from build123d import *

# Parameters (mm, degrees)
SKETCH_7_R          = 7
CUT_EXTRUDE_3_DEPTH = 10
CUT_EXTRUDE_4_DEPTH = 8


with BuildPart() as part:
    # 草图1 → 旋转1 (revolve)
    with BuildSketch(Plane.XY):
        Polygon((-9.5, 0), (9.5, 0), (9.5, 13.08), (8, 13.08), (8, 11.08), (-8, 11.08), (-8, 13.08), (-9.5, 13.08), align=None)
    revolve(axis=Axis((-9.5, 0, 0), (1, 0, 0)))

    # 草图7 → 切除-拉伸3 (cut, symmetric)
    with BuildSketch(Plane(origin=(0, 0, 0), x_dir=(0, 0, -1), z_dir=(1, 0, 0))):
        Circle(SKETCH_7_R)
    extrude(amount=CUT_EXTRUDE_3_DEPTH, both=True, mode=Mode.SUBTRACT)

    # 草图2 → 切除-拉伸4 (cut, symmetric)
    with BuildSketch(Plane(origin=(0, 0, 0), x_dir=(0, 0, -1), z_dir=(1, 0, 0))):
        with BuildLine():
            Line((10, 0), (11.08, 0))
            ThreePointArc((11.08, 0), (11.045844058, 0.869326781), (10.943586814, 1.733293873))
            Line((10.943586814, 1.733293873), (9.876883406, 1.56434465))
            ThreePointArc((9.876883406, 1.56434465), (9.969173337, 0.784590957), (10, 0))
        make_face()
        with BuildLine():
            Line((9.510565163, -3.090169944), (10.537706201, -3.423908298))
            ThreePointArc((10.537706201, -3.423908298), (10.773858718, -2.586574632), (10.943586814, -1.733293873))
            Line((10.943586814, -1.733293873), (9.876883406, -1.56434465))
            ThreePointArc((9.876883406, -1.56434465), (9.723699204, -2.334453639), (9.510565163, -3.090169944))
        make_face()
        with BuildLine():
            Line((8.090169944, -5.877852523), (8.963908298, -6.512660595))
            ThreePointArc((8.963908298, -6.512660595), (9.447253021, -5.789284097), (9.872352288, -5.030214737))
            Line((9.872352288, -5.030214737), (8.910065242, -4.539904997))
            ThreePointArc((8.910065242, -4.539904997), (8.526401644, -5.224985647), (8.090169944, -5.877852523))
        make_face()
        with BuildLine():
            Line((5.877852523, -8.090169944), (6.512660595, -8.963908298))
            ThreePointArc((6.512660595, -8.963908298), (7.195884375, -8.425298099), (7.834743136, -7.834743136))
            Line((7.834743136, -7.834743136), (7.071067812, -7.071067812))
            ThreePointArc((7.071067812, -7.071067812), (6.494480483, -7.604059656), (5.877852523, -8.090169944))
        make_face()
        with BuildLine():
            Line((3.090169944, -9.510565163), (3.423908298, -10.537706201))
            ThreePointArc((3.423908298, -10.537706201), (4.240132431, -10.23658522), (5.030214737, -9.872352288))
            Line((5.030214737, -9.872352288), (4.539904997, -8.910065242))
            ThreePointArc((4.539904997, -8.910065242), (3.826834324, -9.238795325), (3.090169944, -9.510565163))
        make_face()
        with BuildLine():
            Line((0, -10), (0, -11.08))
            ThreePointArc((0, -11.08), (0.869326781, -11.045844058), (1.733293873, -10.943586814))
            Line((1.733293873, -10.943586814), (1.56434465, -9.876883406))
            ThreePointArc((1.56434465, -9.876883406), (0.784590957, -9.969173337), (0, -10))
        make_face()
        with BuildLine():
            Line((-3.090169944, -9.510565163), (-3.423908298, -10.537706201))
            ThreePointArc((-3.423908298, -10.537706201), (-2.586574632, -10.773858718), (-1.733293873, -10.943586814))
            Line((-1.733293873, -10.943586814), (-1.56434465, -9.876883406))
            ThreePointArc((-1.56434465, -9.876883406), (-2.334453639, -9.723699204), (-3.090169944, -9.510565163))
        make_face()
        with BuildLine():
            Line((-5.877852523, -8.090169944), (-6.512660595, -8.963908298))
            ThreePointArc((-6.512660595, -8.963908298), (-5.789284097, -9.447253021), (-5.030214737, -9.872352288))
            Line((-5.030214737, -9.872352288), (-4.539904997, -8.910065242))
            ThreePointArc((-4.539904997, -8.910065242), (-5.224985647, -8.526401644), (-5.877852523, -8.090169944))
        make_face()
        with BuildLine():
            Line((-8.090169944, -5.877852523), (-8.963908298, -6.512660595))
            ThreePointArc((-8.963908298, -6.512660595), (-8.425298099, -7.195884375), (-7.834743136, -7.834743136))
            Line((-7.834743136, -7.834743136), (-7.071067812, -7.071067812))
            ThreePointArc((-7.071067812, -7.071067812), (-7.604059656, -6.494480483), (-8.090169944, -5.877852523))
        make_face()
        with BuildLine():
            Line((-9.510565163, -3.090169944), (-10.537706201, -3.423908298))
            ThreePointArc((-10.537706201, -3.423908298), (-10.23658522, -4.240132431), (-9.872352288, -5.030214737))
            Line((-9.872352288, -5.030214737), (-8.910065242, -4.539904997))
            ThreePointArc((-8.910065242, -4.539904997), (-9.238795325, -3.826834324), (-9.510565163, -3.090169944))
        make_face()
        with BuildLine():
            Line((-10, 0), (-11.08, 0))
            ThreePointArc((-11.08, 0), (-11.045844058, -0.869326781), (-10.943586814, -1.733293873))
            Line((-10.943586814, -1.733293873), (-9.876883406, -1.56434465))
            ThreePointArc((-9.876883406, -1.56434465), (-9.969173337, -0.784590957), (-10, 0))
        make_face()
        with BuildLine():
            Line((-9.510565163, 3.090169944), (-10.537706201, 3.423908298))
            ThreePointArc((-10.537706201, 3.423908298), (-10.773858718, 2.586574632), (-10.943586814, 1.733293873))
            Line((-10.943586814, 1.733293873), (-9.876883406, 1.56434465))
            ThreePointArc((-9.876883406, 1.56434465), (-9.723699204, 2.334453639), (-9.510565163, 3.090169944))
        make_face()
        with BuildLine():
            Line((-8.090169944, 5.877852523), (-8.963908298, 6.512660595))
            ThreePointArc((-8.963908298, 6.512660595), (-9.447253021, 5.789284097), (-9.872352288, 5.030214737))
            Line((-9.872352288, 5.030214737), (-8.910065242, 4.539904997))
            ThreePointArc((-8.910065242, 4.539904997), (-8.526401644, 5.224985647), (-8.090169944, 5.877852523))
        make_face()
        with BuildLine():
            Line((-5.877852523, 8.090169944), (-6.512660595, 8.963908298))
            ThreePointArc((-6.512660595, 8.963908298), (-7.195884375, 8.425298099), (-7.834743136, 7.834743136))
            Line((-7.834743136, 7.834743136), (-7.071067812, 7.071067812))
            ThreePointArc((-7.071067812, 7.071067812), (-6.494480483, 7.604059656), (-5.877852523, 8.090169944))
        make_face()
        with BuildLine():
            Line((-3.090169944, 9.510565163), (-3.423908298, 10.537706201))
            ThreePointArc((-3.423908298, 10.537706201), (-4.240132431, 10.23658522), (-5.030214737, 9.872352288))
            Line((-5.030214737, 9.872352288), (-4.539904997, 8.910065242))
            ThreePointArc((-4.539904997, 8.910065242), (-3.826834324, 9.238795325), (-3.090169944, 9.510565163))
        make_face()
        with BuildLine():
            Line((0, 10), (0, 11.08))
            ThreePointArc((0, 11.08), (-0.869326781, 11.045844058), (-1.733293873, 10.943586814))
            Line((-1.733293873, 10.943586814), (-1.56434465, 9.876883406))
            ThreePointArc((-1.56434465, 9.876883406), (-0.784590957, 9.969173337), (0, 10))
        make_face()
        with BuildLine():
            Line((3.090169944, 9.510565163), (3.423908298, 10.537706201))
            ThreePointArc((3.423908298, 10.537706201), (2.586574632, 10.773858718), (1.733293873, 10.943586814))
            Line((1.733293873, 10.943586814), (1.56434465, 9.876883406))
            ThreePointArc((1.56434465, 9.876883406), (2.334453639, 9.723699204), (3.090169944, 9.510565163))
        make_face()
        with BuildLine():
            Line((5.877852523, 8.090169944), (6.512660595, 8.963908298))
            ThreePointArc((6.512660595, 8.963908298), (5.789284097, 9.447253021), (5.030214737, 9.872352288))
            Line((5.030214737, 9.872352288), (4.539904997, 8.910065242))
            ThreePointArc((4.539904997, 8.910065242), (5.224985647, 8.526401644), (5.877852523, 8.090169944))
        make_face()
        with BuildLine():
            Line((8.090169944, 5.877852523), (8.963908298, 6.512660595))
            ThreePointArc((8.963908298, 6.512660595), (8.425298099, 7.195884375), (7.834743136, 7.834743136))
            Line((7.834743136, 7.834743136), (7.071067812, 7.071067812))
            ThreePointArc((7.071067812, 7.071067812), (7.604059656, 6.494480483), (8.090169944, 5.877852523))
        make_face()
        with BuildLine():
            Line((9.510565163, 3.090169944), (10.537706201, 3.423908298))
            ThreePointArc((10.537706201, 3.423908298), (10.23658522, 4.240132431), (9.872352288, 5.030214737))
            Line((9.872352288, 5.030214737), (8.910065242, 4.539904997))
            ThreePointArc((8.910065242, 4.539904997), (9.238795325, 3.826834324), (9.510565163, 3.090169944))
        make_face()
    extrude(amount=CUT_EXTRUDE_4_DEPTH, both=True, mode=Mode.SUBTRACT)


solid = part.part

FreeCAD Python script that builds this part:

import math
import FreeCAD as App
import Part
import Sketcher
Q = App.Units.Quantity

doc = App.newDocument("Part")
params = doc.addObject("Spreadsheet::Sheet", "Params")
for row, (alias, value) in enumerate([
    ("sketch1_width", "19 mm"),
    ("sketch1_width2", "16 mm"),
    ("sketch1_height", "2 mm"),
    ("sketch1_height2", "13.08 mm"),
    ("revolution_angle", "360 deg"),
    ("sketch2_diameter", "14 mm"),
    ("pocket1_length", "20 mm"),
    ("sketch3_radius", "10 mm"),
    ("sketch3_radius2", "11.08 mm"),
    ("pocket2_length", "16 mm"),
], start=1):
    params.set(f"A{row}", alias)
    params.set(f"B{row}", "=" + value)
    params.setAlias(f"B{row}", alias)

body = doc.addObject("PartDesign::Body", "Body")

sketch1 = body.newObject("Sketcher::SketchObject", "Sketch")
sketch1.AttachmentSupport = (doc.getObject("XY_Plane"), [""])
sketch1.MapMode = "FlatFace"
sketch1.addGeometry([
    Part.LineSegment(App.Vector(-9.5, 0, 0), App.Vector(9.5, 0, 0)),
    Part.LineSegment(App.Vector(9.5, 0, 0), App.Vector(9.5, 13.1, 0)),
    Part.LineSegment(App.Vector(9.5, 13.1, 0), App.Vector(8, 13.1, 0)),
    Part.LineSegment(App.Vector(8, 13.1, 0), App.Vector(8, 11.1, 0)),
    Part.LineSegment(App.Vector(8, 11.1, 0), App.Vector(-8, 11.1, 0)),
    Part.LineSegment(App.Vector(-8, 11.1, 0), App.Vector(-8, 13.1, 0)),
    Part.LineSegment(App.Vector(-8, 13.1, 0), App.Vector(-9.5, 13.1, 0)),
    Part.LineSegment(App.Vector(-9.5, 13.1, 0), App.Vector(-9.5, 0, 0)),
], False)
sketch1.addConstraint([
    Sketcher.Constraint("Coincident", 0, 2, 1, 1),
    Sketcher.Constraint("Coincident", 1, 2, 2, 1),
    Sketcher.Constraint("Coincident", 2, 2, 3, 1),
    Sketcher.Constraint("Coincident", 3, 2, 4, 1),
    Sketcher.Constraint("Coincident", 4, 2, 5, 1),
    Sketcher.Constraint("Coincident", 5, 2, 6, 1),
    Sketcher.Constraint("Coincident", 6, 2, 7, 1),
    Sketcher.Constraint("Coincident", 7, 2, 0, 1),
    Sketcher.Constraint("Horizontal", 0),
    Sketcher.Constraint("Vertical", 1),
    Sketcher.Constraint("Horizontal", 2),
    Sketcher.Constraint("Vertical", 3),
    Sketcher.Constraint("Horizontal", 4),
    Sketcher.Constraint("Vertical", 5),
    Sketcher.Constraint("Horizontal", 6),
    Sketcher.Constraint("Vertical", 7),
    Sketcher.Constraint("Symmetric", 0, 2, 7, 2, -1, 1),
    Sketcher.Constraint("Symmetric", 2, 2, 5, 2, -2),
    Sketcher.Constraint("DistanceX", 0, 1, 0, 2, Q("19 mm")),
    Sketcher.Constraint("DistanceX", 4, 2, 4, 1, Q("16 mm")),
    Sketcher.Constraint("DistanceY", 3, 2, 3, 1, Q("2 mm")),
    Sketcher.Constraint("DistanceY", 1, 1, 1, 2, Q("13.08 mm")),
])
sketch1.setExpression("Constraints[18]", "Params.sketch1_width")
sketch1.setExpression("Constraints[19]", "Params.sketch1_width2")
sketch1.setExpression("Constraints[20]", "Params.sketch1_height")
sketch1.setExpression("Constraints[21]", "Params.sketch1_height2")
revolution = body.newObject("PartDesign::Revolution", "Revolution")
revolution.Profile = sketch1
revolution.ReferenceAxis = (sketch1, ["H_Axis"])
revolution.setExpression("Angle", "Params.revolution_angle")

sketch2 = body.newObject("Sketcher::SketchObject", "Sketch001")
sketch2.AttachmentSupport = (doc.getObject("YZ_Plane"), [""])
sketch2.MapMode = "FlatFace"
sketch2.addGeometry(Part.Circle(App.Vector(0, 0, 0), App.Vector(0, 0, 1), 7), False)
sketch2.addConstraint([
    Sketcher.Constraint("Coincident", 0, 3, -1, 1),
    Sketcher.Constraint("Diameter", 0, Q("14 mm")),
])
sketch2.setExpression("Constraints[1]", "Params.sketch2_diameter")
pocket1 = body.newObject("PartDesign::Pocket", "Pocket")
pocket1.Profile = sketch2
pocket1.setExpression("Length", "Params.pocket1_length")
pocket1.Midplane = True

sketch3 = body.newObject("Sketcher::SketchObject", "Sketch002")
sketch3.AttachmentSupport = (doc.getObject("YZ_Plane"), [""])
sketch3.MapMode = "FlatFace"
sketch3.addGeometry([
    Part.LineSegment(App.Vector(0, -10, 0), App.Vector(0, -11.1, 0)),
    Part.ArcOfCircle(Part.Circle(App.Vector(0, 0, 0), App.Vector(0, 0, 1), 11.1), math.radians(-90), math.radians(-81)),
    Part.LineSegment(App.Vector(1.7, -10.9, 0), App.Vector(1.6, -9.9, 0)),
    Part.ArcOfCircle(Part.Circle(App.Vector(0, 0, 0), App.Vector(0, 0, 1), 10), math.radians(-90), math.radians(-81)),
    Part.LineSegment(App.Vector(-3.1, -9.5, 0), App.Vector(-3.4, -10.5, 0)),
    Part.ArcOfCircle(Part.Circle(App.Vector(0, 0, 0), App.Vector(0, 0, 1), 11.1), math.radians(-108), math.radians(-99)),
    Part.LineSegment(App.Vector(-1.7, -10.9, 0), App.Vector(-1.6, -9.9, 0)),
    Part.ArcOfCircle(Part.Circle(App.Vector(0, 0, 0), App.Vector(0, 0, 1), 10), math.radians(-108), math.radians(-99)),
    Part.LineSegment(App.Vector(-5.9, -8.1, 0), App.Vector(-6.5, -9, 0)),
    Part.ArcOfCircle(Part.Circle(App.Vector(0, 0, 0), App.Vector(0, 0, 1), 11.1), math.radians(-126), math.radians(-117)),
    Part.LineSegment(App.Vector(-5, -9.9, 0), App.Vector(-4.5, -8.9, 0)),
    Part.ArcOfCircle(Part.Circle(App.Vector(0, 0, 0), App.Vector(0, 0, 1), 10), math.radians(-126), math.radians(-117)),
    Part.LineSegment(App.Vector(-8.1, -5.9, 0), App.Vector(-9, -6.5, 0)),
    Part.ArcOfCircle(Part.Circle(App.Vector(0, 0, 0), App.Vector(0, 0, 1), 11.1), math.radians(-144), math.radians(-135)),
    Part.LineSegment(App.Vector(-7.8, -7.8, 0), App.Vector(-7.1, -7.1, 0)),
    Part.ArcOfCircle(Part.Circle(App.Vector(0, 0, 0), App.Vector(0, 0, 1), 10), math.radians(-144), math.radians(-135)),
    Part.LineSegment(App.Vector(-9.5, -3.1, 0), App.Vector(-10.5, -3.4, 0)),
    Part.ArcOfCircle(Part.Circle(App.Vector(0, 0, 0), App.Vector(0, 0, 1), 11.1), math.radians(-162), math.radians(-153)),
    Part.LineSegment(App.Vector(-9.9, -5, 0), App.Vector(-8.9, -4.5, 0)),
    Part.ArcOfCircle(Part.Circle(App.Vector(0, 0, 0), App.Vector(0, 0, 1), 10), math.radians(-162), math.radians(-153)),
    Part.LineSegment(App.Vector(-10, 0, 0), App.Vector(-11.1, 0, 0)),
    Part.ArcOfCircle(Part.Circle(App.Vector(0, 0, 0), App.Vector(0, 0, 1), 11.1), math.radians(180), math.radians(189)),
    Part.LineSegment(App.Vector(-10.9, -1.7, 0), App.Vector(-9.9, -1.6, 0)),
    Part.ArcOfCircle(Part.Circle(App.Vector(0, 0, 0), App.Vector(0, 0, 1), 10), math.radians(-180), math.radians(-171)),
    Part.LineSegment(App.Vector(-9.5, 3.1, 0), App.Vector(-10.5, 3.4, 0)),
    Part.ArcOfCircle(Part.Circle(App.Vector(0, 0, 0), App.Vector(0, 0, 1), 11.1), math.radians(162), math.radians(171)),
    Part.LineSegment(App.Vector(-10.9, 1.7, 0), App.Vector(-9.9, 1.6, 0)),
    Part.ArcOfCircle(Part.Circle(App.Vector(0, 0, 0), App.Vector(0, 0, 1), 10), math.radians(162), math.radians(171)),
    Part.LineSegment(App.Vector(-8.1, 5.9, 0), App.Vector(-9, 6.5, 0)),
    Part.ArcOfCircle(Part.Circle(App.Vector(0, 0, 0), App.Vector(0, 0, 1), 11.1), math.radians(144), math.radians(153)),
    Part.LineSegment(App.Vector(-9.9, 5, 0), App.Vector(-8.9, 4.5, 0)),
    Part.ArcOfCircle(Part.Circle(App.Vector(0, 0, 0), App.Vector(0, 0, 1), 10), math.radians(144), math.radians(153)),
    Part.LineSegment(App.Vector(-5.9, 8.1, 0), App.Vector(-6.5, 9, 0)),
    Part.ArcOfCircle(Part.Circle(App.Vector(0, 0, 0), App.Vector(0, 0, 1), 11.1), math.radians(126), math.radians(135)),
    Part.LineSegment(App.Vector(-7.8, 7.8, 0), App.Vector(-7.1, 7.1, 0)),
    Part.ArcOfCircle(Part.Circle(App.Vector(0, 0, 0), App.Vector(0, 0, 1), 10), math.radians(126), math.radians(135)),
    Part.LineSegment(App.Vector(-3.1, 9.5, 0), App.Vector(-3.4, 10.5, 0)),
    Part.ArcOfCircle(Part.Circle(App.Vector(0, 0, 0), App.Vector(0, 0, 1), 11.1), math.radians(108), math.radians(117)),
    Part.LineSegment(App.Vector(-5, 9.9, 0), App.Vector(-4.5, 8.9, 0)),
    Part.ArcOfCircle(Part.Circle(App.Vector(0, 0, 0), App.Vector(0, 0, 1), 10), math.radians(108), math.radians(117)),
    Part.LineSegment(App.Vector(0, 10, 0), App.Vector(0, 11.1, 0)),
    Part.ArcOfCircle(Part.Circle(App.Vector(0, 0, 0), App.Vector(0, 0, 1), 11.1), math.radians(90), math.radians(99)),
    Part.LineSegment(App.Vector(-1.7, 10.9, 0), App.Vector(-1.6, 9.9, 0)),
    Part.ArcOfCircle(Part.Circle(App.Vector(0, 0, 0), App.Vector(0, 0, 1), 10), math.radians(90), math.radians(99)),
    Part.LineSegment(App.Vector(3.1, 9.5, 0), App.Vector(3.4, 10.5, 0)),
    Part.ArcOfCircle(Part.Circle(App.Vector(0, 0, 0), App.Vector(0, 0, 1), 11.1), math.radians(72), math.radians(81)),
    Part.LineSegment(App.Vector(1.7, 10.9, 0), App.Vector(1.6, 9.9, 0)),
    Part.ArcOfCircle(Part.Circle(App.Vector(0, 0, 0), App.Vector(0, 0, 1), 10), math.radians(72), math.radians(81)),
    Part.LineSegment(App.Vector(5.9, 8.1, 0), App.Vector(6.5, 9, 0)),
    Part.ArcOfCircle(Part.Circle(App.Vector(0, 0, 0), App.Vector(0, 0, 1), 11.1), math.radians(54), math.radians(63)),
    Part.LineSegment(App.Vector(5, 9.9, 0), App.Vector(4.5, 8.9, 0)),
    Part.ArcOfCircle(Part.Circle(App.Vector(0, 0, 0), App.Vector(0, 0, 1), 10), math.radians(54), math.radians(63)),
    Part.LineSegment(App.Vector(8.1, 5.9, 0), App.Vector(9, 6.5, 0)),
    Part.ArcOfCircle(Part.Circle(App.Vector(0, 0, 0), App.Vector(0, 0, 1), 11.1), math.radians(36), math.radians(45)),
    Part.LineSegment(App.Vector(7.8, 7.8, 0), App.Vector(7.1, 7.1, 0)),
    Part.ArcOfCircle(Part.Circle(App.Vector(0, 0, 0), App.Vector(0, 0, 1), 10), math.radians(36), math.radians(45)),
    Part.LineSegment(App.Vector(9.5, 3.1, 0), App.Vector(10.5, 3.4, 0)),
    Part.ArcOfCircle(Part.Circle(App.Vector(0, 0, 0), App.Vector(0, 0, 1), 11.1), math.radians(18), math.radians(27)),
    Part.LineSegment(App.Vector(9.9, 5, 0), App.Vector(8.9, 4.5, 0)),
    Part.ArcOfCircle(Part.Circle(App.Vector(0, 0, 0), App.Vector(0, 0, 1), 10), math.radians(18), math.radians(27)),
    Part.LineSegment(App.Vector(10, 0, 0), App.Vector(11.1, 0, 0)),
    Part.ArcOfCircle(Part.Circle(App.Vector(0, 0, 0), App.Vector(0, 0, 1), 11.1), math.radians(0), math.radians(9)),
    Part.LineSegment(App.Vector(10.9, 1.7, 0), App.Vector(9.9, 1.6, 0)),
    Part.ArcOfCircle(Part.Circle(App.Vector(0, 0, 0), App.Vector(0, 0, 1), 10), math.radians(0), math.radians(9)),
    Part.LineSegment(App.Vector(9.5, -3.1, 0), App.Vector(10.5, -3.4, 0)),
    Part.ArcOfCircle(Part.Circle(App.Vector(0, 0, 0), App.Vector(0, 0, 1), 11.1), math.radians(-18), math.radians(-9)),
    Part.LineSegment(App.Vector(10.9, -1.7, 0), App.Vector(9.9, -1.6, 0)),
    Part.ArcOfCircle(Part.Circle(App.Vector(0, 0, 0), App.Vector(0, 0, 1), 10), math.radians(-18), math.radians(-9)),
    Part.LineSegment(App.Vector(8.1, -5.9, 0), App.Vector(9, -6.5, 0)),
    Part.ArcOfCircle(Part.Circle(App.Vector(0, 0, 0), App.Vector(0, 0, 1), 11.1), math.radians(-36), math.radians(-27)),
    Part.LineSegment(App.Vector(9.9, -5, 0), App.Vector(8.9, -4.5, 0)),
    Part.ArcOfCircle(Part.Circle(App.Vector(0, 0, 0), App.Vector(0, 0, 1), 10), math.radians(-36), math.radians(-27)),
    Part.LineSegment(App.Vector(5.9, -8.1, 0), App.Vector(6.5, -9, 0)),
    Part.ArcOfCircle(Part.Circle(App.Vector(0, 0, 0), App.Vector(0, 0, 1), 11.1), math.radians(-54), math.radians(-45)),
    Part.LineSegment(App.Vector(7.8, -7.8, 0), App.Vector(7.1, -7.1, 0)),
    Part.ArcOfCircle(Part.Circle(App.Vector(0, 0, 0), App.Vector(0, 0, 1), 10), math.radians(-54), math.radians(-45)),
    Part.LineSegment(App.Vector(3.1, -9.5, 0), App.Vector(3.4, -10.5, 0)),
    Part.ArcOfCircle(Part.Circle(App.Vector(0, 0, 0), App.Vector(0, 0, 1), 11.1), math.radians(-72), math.radians(-63)),
    Part.LineSegment(App.Vector(5, -9.9, 0), App.Vector(4.5, -8.9, 0)),
    Part.ArcOfCircle(Part.Circle(App.Vector(0, 0, 0), App.Vector(0, 0, 1), 10), math.radians(-72), math.radians(-63)),
], False)
sketch3.addConstraint([
    Sketcher.Constraint("Coincident", 0, 2, 1, 1),
    Sketcher.Constraint("Coincident", 1, 2, 2, 1),
    Sketcher.Constraint("Coincident", 2, 2, 3, 2),
    Sketcher.Constraint("Coincident", 3, 1, 0, 1),
    Sketcher.Constraint("Coincident", 4, 2, 5, 1),
    Sketcher.Constraint("Coincident", 5, 2, 6, 1),
    Sketcher.Constraint("Coincident", 6, 2, 7, 2),
    Sketcher.Constraint("Coincident", 7, 1, 4, 1),
    Sketcher.Constraint("Coincident", 8, 2, 9, 1),
    Sketcher.Constraint("Coincident", 9, 2, 10, 1),
    Sketcher.Constraint("Coincident", 10, 2, 11, 2),
    Sketcher.Constraint("Coincident", 11, 1, 8, 1),
    Sketcher.Constraint("Coincident", 12, 2, 13, 1),
    Sketcher.Constraint("Coincident", 13, 2, 14, 1),
    Sketcher.Constraint("Coincident", 14, 2, 15, 2),
    Sketcher.Constraint("Coincident", 15, 1, 12, 1),
    Sketcher.Constraint("Coincident", 16, 2, 17, 1),
    Sketcher.Constraint("Coincident", 17, 2, 18, 1),
    Sketcher.Constraint("Coincident", 18, 2, 19, 2),
    Sketcher.Constraint("Coincident", 19, 1, 16, 1),
    Sketcher.Constraint("Coincident", 20, 2, 21, 1),
    Sketcher.Constraint("Coincident", 21, 2, 22, 1),
    Sketcher.Constraint("Coincident", 22, 2, 23, 2),
    Sketcher.Constraint("Coincident", 23, 1, 20, 1),
    Sketcher.Constraint("Coincident", 24, 2, 25, 1),
    Sketcher.Constraint("Coincident", 25, 2, 26, 1),
    Sketcher.Constraint("Coincident", 26, 2, 27, 2),
    Sketcher.Constraint("Coincident", 27, 1, 24, 1),
    Sketcher.Constraint("Coincident", 28, 2, 29, 1),
    Sketcher.Constraint("Coincident", 29, 2, 30, 1),
    Sketcher.Constraint("Coincident", 30, 2, 31, 2),
    Sketcher.Constraint("Coincident", 31, 1, 28, 1),
    Sketcher.Constraint("Coincident", 32, 2, 33, 1),
    Sketcher.Constraint("Coincident", 33, 2, 34, 1),
    Sketcher.Constraint("Coincident", 34, 2, 35, 2),
    Sketcher.Constraint("Coincident", 35, 1, 32, 1),
    Sketcher.Constraint("Coincident", 36, 2, 37, 1),
    Sketcher.Constraint("Coincident", 37, 2, 38, 1),
    Sketcher.Constraint("Coincident", 38, 2, 39, 2),
    Sketcher.Constraint("Coincident", 39, 1, 36, 1),
    Sketcher.Constraint("Coincident", 40, 2, 41, 1),
    Sketcher.Constraint("Coincident", 41, 2, 42, 1),
    Sketcher.Constraint("Coincident", 42, 2, 43, 2),
    Sketcher.Constraint("Coincident", 43, 1, 40, 1),
    Sketcher.Constraint("Coincident", 44, 2, 45, 1),
    Sketcher.Constraint("Coincident", 45, 2, 46, 1),
    Sketcher.Constraint("Coincident", 46, 2, 47, 2),
    Sketcher.Constraint("Coincident", 47, 1, 44, 1),
    Sketcher.Constraint("Coincident", 48, 2, 49, 1),
    Sketcher.Constraint("Coincident", 49, 2, 50, 1),
    Sketcher.Constraint("Coincident", 50, 2, 51, 2),
    Sketcher.Constraint("Coincident", 51, 1, 48, 1),
    Sketcher.Constraint("Coincident", 52, 2, 53, 1),
    Sketcher.Constraint("Coincident", 53, 2, 54, 1),
    Sketcher.Constraint("Coincident", 54, 2, 55, 2),
    Sketcher.Constraint("Coincident", 55, 1, 52, 1),
    Sketcher.Constraint("Coincident", 56, 2, 57, 1),
    Sketcher.Constraint("Coincident", 57, 2, 58, 1),
    Sketcher.Constraint("Coincident", 58, 2, 59, 2),
    Sketcher.Constraint("Coincident", 59, 1, 56, 1),
    Sketcher.Constraint("Coincident", 60, 2, 61, 1),
    Sketcher.Constraint("Coincident", 61, 2, 62, 1),
    Sketcher.Constraint("Coincident", 62, 2, 63, 2),
    Sketcher.Constraint("Coincident", 63, 1, 60, 1),
    Sketcher.Constraint("Coincident", 64, 2, 65, 1),
    Sketcher.Constraint("Coincident", 65, 2, 66, 1),
    Sketcher.Constraint("Coincident", 66, 2, 67, 2),
    Sketcher.Constraint("Coincident", 67, 1, 64, 1),
    Sketcher.Constraint("Coincident", 68, 2, 69, 1),
    Sketcher.Constraint("Coincident", 69, 2, 70, 1),
    Sketcher.Constraint("Coincident", 70, 2, 71, 2),
    Sketcher.Constraint("Coincident", 71, 1, 68, 1),
    Sketcher.Constraint("Coincident", 72, 2, 73, 1),
    Sketcher.Constraint("Coincident", 73, 2, 74, 1),
    Sketcher.Constraint("Coincident", 74, 2, 75, 2),
    Sketcher.Constraint("Coincident", 75, 1, 72, 1),
    Sketcher.Constraint("Coincident", 76, 2, 77, 1),
    Sketcher.Constraint("Coincident", 77, 2, 78, 1),
    Sketcher.Constraint("Coincident", 78, 2, 79, 2),
    Sketcher.Constraint("Coincident", 79, 1, 76, 1),
    Sketcher.Constraint("Vertical", 0),
    Sketcher.Constraint("Horizontal", 20),
    Sketcher.Constraint("Vertical", 40),
    Sketcher.Constraint("Horizontal", 60),
    Sketcher.Constraint("Coincident", 1, 3, -1, 1),
    Sketcher.Constraint("Coincident", 3, 3, -1, 1),
    Sketcher.Constraint("Coincident", 5, 3, -1, 1),
    Sketcher.Constraint("Coincident", 7, 3, -1, 1),
    Sketcher.Constraint("Coincident", 9, 3, -1, 1),
    Sketcher.Constraint("Coincident", 11, 3, -1, 1),
    Sketcher.Constraint("Coincident", 13, 3, -1, 1),
    Sketcher.Constraint("Coincident", 15, 3, -1, 1),
    Sketcher.Constraint("Coincident", 17, 3, -1, 1),
    Sketcher.Constraint("Coincident", 19, 3, -1, 1),
    Sketcher.Constraint("Coincident", 21, 3, -1, 1),
    Sketcher.Constraint("Coincident", 23, 3, -1, 1),
    Sketcher.Constraint("Coincident", 25, 3, -1, 1),
    Sketcher.Constraint("Coincident", 27, 3, -1, 1),
    Sketcher.Constraint("Coincident", 29, 3, -1, 1),
    Sketcher.Constraint("Coincident", 31, 3, -1, 1),
    Sketcher.Constraint("Coincident", 33, 3, -1, 1),
    Sketcher.Constraint("Coincident", 35, 3, -1, 1),
    Sketcher.Constraint("Coincident", 37, 3, -1, 1),
    Sketcher.Constraint("Coincident", 39, 3, -1, 1),
    Sketcher.Constraint("Coincident", 41, 3, -1, 1),
    Sketcher.Constraint("Coincident", 43, 3, -1, 1),
    Sketcher.Constraint("Coincident", 45, 3, -1, 1),
    Sketcher.Constraint("Coincident", 47, 3, -1, 1),
    Sketcher.Constraint("Coincident", 49, 3, -1, 1),
    Sketcher.Constraint("Coincident", 51, 3, -1, 1),
    Sketcher.Constraint("Coincident", 53, 3, -1, 1),
    Sketcher.Constraint("Coincident", 55, 3, -1, 1),
    Sketcher.Constraint("Coincident", 57, 3, -1, 1),
    Sketcher.Constraint("Coincident", 59, 3, -1, 1),
    Sketcher.Constraint("Coincident", 61, 3, -1, 1),
    Sketcher.Constraint("Coincident", 63, 3, -1, 1),
    Sketcher.Constraint("Coincident", 65, 3, -1, 1),
    Sketcher.Constraint("Coincident", 67, 3, -1, 1),
    Sketcher.Constraint("Coincident", 69, 3, -1, 1),
    Sketcher.Constraint("Coincident", 71, 3, -1, 1),
    Sketcher.Constraint("Coincident", 73, 3, -1, 1),
    Sketcher.Constraint("Coincident", 75, 3, -1, 1),
    Sketcher.Constraint("Coincident", 77, 3, -1, 1),
    Sketcher.Constraint("Coincident", 79, 3, -1, 1),
    Sketcher.Constraint("Equal", 1, 5),
    Sketcher.Constraint("Equal", 3, 7),
    Sketcher.Constraint("Equal", 5, 9),
    Sketcher.Constraint("Equal", 7, 11),
    Sketcher.Constraint("Equal", 9, 13),
    Sketcher.Constraint("Equal", 11, 15),
    Sketcher.Constraint("Equal", 13, 17),
    Sketcher.Constraint("Equal", 15, 19),
    Sketcher.Constraint("Equal", 17, 21),
    Sketcher.Constraint("Equal", 19, 23),
    Sketcher.Constraint("Equal", 21, 25),
    Sketcher.Constraint("Equal", 23, 27),
    Sketcher.Constraint("Equal", 25, 29),
    Sketcher.Constraint("Equal", 27, 31),
    Sketcher.Constraint("Equal", 29, 33),
    Sketcher.Constraint("Equal", 31, 35),
    Sketcher.Constraint("Equal", 33, 37),
    Sketcher.Constraint("Equal", 35, 39),
    Sketcher.Constraint("Equal", 37, 41),
    Sketcher.Constraint("Equal", 39, 43),
    Sketcher.Constraint("Equal", 41, 45),
    Sketcher.Constraint("Equal", 43, 47),
    Sketcher.Constraint("Equal", 45, 49),
    Sketcher.Constraint("Equal", 47, 51),
    Sketcher.Constraint("Equal", 49, 53),
    Sketcher.Constraint("Equal", 51, 55),
    Sketcher.Constraint("Equal", 53, 57),
    Sketcher.Constraint("Equal", 55, 59),
    Sketcher.Constraint("Equal", 57, 61),
    Sketcher.Constraint("Equal", 59, 63),
    Sketcher.Constraint("Equal", 61, 65),
    Sketcher.Constraint("Equal", 63, 67),
    Sketcher.Constraint("Equal", 65, 69),
    Sketcher.Constraint("Equal", 67, 71),
    Sketcher.Constraint("Equal", 69, 73),
    Sketcher.Constraint("Equal", 71, 75),
    Sketcher.Constraint("Equal", 73, 77),
    Sketcher.Constraint("Equal", 75, 79),
    Sketcher.Constraint("PointOnObject", 0, 2, -2),
    Sketcher.Constraint("PointOnObject", 20, 2, -1),
    Sketcher.Constraint("PointOnObject", 40, 2, -2),
    Sketcher.Constraint("PointOnObject", 60, 2, -1),
    Sketcher.Constraint("Perpendicular", 2, 22),
    Sketcher.Constraint("Perpendicular", 4, 24),
    Sketcher.Constraint("Perpendicular", 6, 26),
    Sketcher.Constraint("Perpendicular", 8, 28),
    Sketcher.Constraint("Perpendicular", 10, 30),
    Sketcher.Constraint("Perpendicular", 12, 32),
    Sketcher.Constraint("Perpendicular", 14, 34),
    Sketcher.Constraint("Perpendicular", 16, 36),
    Sketcher.Constraint("Perpendicular", 18, 38),
    Sketcher.Constraint("Perpendicular", 22, 42),
    Sketcher.Constraint("Perpendicular", 24, 44),
    Sketcher.Constraint("Perpendicular", 26, 46),
    Sketcher.Constraint("Perpendicular", 28, 48),
    Sketcher.Constraint("Perpendicular", 30, 50),
    Sketcher.Constraint("Perpendicular", 32, 52),
    Sketcher.Constraint("Perpendicular", 34, 54),
    Sketcher.Constraint("Perpendicular", 36, 56),
    Sketcher.Constraint("Perpendicular", 38, 58),
    Sketcher.Constraint("Perpendicular", 42, 62),
    Sketcher.Constraint("Perpendicular", 44, 64),
    Sketcher.Constraint("Perpendicular", 46, 66),
    Sketcher.Constraint("Perpendicular", 48, 68),
    Sketcher.Constraint("Perpendicular", 50, 70),
    Sketcher.Constraint("Perpendicular", 52, 72),
    Sketcher.Constraint("Perpendicular", 54, 74),
    Sketcher.Constraint("Perpendicular", 56, 76),
    Sketcher.Constraint("Perpendicular", 58, 78),
    Sketcher.Constraint("Horizontal", 1, 2, 5, 2),
    Sketcher.Constraint("Horizontal", 2, 2, 6, 2),
    Sketcher.Constraint("Horizontal", 36, 2, 44, 2),
    Sketcher.Constraint("Horizontal", 41, 2, 45, 2),
    Sketcher.Constraint("Horizontal", 39, 1, 47, 1),
    Sketcher.Constraint("Horizontal", 32, 2, 48, 2),
    Sketcher.Constraint("Horizontal", 37, 2, 49, 2),
    Sketcher.Constraint("Horizontal", 38, 2, 50, 2),
    Sketcher.Constraint("Horizontal", 35, 1, 51, 1),
    Sketcher.Constraint("Horizontal", 28, 2, 52, 2),
    Sketcher.Constraint("Horizontal", 33, 2, 53, 2),
    Sketcher.Constraint("Horizontal", 34, 2, 54, 2),
    Sketcher.Constraint("Horizontal", 24, 2, 56, 2),
    Sketcher.Constraint("Horizontal", 29, 2, 57, 2),
    Sketcher.Constraint("Horizontal", 25, 2, 61, 2),
    Sketcher.Constraint("Horizontal", 16, 2, 64, 2),
    Sketcher.Constraint("Horizontal", 21, 2, 65, 2),
    Sketcher.Constraint("Horizontal", 12, 2, 68, 2),
    Sketcher.Constraint("Horizontal", 17, 2, 69, 2),
    Sketcher.Constraint("Horizontal", 8, 2, 72, 2),
    Sketcher.Constraint("Horizontal", 13, 2, 73, 2),
    Sketcher.Constraint("Horizontal", 4, 2, 76, 2),
    Sketcher.Constraint("Horizontal", 9, 2, 77, 2),
    Sketcher.Constraint("Vertical", 16, 2, 24, 2),
    Sketcher.Constraint("Vertical", 21, 2, 25, 2),
    Sketcher.Constraint("Vertical", 12, 2, 28, 2),
    Sketcher.Constraint("Vertical", 17, 2, 29, 2),
    Sketcher.Constraint("Vertical", 8, 2, 32, 2),
    Sketcher.Constraint("Vertical", 13, 2, 33, 2),
    Sketcher.Constraint("Vertical", 4, 2, 36, 2),
    Sketcher.Constraint("Vertical", 9, 2, 37, 2),
    Sketcher.Constraint("Vertical", 5, 2, 41, 2),
    Sketcher.Constraint("Radius", 3, Q("10 mm")),
    Sketcher.Constraint("Angle", 2, Q("99 deg")),
    Sketcher.Constraint("Angle", 4, Q("-108 deg")),
    Sketcher.Constraint("Angle", 8, Q("-126 deg")),
    Sketcher.Constraint("Angle", 10, Q("63 deg")),
    Sketcher.Constraint("Radius", 1, Q("11.08 mm")),
    Sketcher.Constraint("DistanceX", 4, 2, -1, 1, Q("3.423908 mm")),
    Sketcher.Constraint("DistanceX", 8, 2, -1, 1, Q("6.512661 mm")),
    Sketcher.Constraint("DistanceX", 12, 2, -1, 1, Q("8.963908 mm")),
    Sketcher.Constraint("DistanceY", 16, 2, -1, 1, Q("3.423908 mm")),
    Sketcher.Constraint("DistanceX", -1, 1, 1, 2, Q("1.733294 mm")),
    Sketcher.Constraint("DistanceX", 9, 2, -1, 1, Q("5.030215 mm")),
    Sketcher.Constraint("DistanceX", 13, 2, -1, 1, Q("7.834743 mm")),
    Sketcher.Constraint("DistanceX", 17, 2, -1, 1, Q("9.872352 mm")),
    Sketcher.Constraint("DistanceX", 21, 2, -1, 1, Q("10.943587 mm")),
])
sketch3.setExpression("Constraints[225]", "Params.sketch3_radius")
sketch3.setExpression("Constraints[230]", "Params.sketch3_radius2")
pocket2 = body.newObject("PartDesign::Pocket", "Pocket001")
pocket2.Profile = sketch3
pocket2.setExpression("Length", "Params.pocket2_length")
pocket2.Midplane = True

doc.recompute()
